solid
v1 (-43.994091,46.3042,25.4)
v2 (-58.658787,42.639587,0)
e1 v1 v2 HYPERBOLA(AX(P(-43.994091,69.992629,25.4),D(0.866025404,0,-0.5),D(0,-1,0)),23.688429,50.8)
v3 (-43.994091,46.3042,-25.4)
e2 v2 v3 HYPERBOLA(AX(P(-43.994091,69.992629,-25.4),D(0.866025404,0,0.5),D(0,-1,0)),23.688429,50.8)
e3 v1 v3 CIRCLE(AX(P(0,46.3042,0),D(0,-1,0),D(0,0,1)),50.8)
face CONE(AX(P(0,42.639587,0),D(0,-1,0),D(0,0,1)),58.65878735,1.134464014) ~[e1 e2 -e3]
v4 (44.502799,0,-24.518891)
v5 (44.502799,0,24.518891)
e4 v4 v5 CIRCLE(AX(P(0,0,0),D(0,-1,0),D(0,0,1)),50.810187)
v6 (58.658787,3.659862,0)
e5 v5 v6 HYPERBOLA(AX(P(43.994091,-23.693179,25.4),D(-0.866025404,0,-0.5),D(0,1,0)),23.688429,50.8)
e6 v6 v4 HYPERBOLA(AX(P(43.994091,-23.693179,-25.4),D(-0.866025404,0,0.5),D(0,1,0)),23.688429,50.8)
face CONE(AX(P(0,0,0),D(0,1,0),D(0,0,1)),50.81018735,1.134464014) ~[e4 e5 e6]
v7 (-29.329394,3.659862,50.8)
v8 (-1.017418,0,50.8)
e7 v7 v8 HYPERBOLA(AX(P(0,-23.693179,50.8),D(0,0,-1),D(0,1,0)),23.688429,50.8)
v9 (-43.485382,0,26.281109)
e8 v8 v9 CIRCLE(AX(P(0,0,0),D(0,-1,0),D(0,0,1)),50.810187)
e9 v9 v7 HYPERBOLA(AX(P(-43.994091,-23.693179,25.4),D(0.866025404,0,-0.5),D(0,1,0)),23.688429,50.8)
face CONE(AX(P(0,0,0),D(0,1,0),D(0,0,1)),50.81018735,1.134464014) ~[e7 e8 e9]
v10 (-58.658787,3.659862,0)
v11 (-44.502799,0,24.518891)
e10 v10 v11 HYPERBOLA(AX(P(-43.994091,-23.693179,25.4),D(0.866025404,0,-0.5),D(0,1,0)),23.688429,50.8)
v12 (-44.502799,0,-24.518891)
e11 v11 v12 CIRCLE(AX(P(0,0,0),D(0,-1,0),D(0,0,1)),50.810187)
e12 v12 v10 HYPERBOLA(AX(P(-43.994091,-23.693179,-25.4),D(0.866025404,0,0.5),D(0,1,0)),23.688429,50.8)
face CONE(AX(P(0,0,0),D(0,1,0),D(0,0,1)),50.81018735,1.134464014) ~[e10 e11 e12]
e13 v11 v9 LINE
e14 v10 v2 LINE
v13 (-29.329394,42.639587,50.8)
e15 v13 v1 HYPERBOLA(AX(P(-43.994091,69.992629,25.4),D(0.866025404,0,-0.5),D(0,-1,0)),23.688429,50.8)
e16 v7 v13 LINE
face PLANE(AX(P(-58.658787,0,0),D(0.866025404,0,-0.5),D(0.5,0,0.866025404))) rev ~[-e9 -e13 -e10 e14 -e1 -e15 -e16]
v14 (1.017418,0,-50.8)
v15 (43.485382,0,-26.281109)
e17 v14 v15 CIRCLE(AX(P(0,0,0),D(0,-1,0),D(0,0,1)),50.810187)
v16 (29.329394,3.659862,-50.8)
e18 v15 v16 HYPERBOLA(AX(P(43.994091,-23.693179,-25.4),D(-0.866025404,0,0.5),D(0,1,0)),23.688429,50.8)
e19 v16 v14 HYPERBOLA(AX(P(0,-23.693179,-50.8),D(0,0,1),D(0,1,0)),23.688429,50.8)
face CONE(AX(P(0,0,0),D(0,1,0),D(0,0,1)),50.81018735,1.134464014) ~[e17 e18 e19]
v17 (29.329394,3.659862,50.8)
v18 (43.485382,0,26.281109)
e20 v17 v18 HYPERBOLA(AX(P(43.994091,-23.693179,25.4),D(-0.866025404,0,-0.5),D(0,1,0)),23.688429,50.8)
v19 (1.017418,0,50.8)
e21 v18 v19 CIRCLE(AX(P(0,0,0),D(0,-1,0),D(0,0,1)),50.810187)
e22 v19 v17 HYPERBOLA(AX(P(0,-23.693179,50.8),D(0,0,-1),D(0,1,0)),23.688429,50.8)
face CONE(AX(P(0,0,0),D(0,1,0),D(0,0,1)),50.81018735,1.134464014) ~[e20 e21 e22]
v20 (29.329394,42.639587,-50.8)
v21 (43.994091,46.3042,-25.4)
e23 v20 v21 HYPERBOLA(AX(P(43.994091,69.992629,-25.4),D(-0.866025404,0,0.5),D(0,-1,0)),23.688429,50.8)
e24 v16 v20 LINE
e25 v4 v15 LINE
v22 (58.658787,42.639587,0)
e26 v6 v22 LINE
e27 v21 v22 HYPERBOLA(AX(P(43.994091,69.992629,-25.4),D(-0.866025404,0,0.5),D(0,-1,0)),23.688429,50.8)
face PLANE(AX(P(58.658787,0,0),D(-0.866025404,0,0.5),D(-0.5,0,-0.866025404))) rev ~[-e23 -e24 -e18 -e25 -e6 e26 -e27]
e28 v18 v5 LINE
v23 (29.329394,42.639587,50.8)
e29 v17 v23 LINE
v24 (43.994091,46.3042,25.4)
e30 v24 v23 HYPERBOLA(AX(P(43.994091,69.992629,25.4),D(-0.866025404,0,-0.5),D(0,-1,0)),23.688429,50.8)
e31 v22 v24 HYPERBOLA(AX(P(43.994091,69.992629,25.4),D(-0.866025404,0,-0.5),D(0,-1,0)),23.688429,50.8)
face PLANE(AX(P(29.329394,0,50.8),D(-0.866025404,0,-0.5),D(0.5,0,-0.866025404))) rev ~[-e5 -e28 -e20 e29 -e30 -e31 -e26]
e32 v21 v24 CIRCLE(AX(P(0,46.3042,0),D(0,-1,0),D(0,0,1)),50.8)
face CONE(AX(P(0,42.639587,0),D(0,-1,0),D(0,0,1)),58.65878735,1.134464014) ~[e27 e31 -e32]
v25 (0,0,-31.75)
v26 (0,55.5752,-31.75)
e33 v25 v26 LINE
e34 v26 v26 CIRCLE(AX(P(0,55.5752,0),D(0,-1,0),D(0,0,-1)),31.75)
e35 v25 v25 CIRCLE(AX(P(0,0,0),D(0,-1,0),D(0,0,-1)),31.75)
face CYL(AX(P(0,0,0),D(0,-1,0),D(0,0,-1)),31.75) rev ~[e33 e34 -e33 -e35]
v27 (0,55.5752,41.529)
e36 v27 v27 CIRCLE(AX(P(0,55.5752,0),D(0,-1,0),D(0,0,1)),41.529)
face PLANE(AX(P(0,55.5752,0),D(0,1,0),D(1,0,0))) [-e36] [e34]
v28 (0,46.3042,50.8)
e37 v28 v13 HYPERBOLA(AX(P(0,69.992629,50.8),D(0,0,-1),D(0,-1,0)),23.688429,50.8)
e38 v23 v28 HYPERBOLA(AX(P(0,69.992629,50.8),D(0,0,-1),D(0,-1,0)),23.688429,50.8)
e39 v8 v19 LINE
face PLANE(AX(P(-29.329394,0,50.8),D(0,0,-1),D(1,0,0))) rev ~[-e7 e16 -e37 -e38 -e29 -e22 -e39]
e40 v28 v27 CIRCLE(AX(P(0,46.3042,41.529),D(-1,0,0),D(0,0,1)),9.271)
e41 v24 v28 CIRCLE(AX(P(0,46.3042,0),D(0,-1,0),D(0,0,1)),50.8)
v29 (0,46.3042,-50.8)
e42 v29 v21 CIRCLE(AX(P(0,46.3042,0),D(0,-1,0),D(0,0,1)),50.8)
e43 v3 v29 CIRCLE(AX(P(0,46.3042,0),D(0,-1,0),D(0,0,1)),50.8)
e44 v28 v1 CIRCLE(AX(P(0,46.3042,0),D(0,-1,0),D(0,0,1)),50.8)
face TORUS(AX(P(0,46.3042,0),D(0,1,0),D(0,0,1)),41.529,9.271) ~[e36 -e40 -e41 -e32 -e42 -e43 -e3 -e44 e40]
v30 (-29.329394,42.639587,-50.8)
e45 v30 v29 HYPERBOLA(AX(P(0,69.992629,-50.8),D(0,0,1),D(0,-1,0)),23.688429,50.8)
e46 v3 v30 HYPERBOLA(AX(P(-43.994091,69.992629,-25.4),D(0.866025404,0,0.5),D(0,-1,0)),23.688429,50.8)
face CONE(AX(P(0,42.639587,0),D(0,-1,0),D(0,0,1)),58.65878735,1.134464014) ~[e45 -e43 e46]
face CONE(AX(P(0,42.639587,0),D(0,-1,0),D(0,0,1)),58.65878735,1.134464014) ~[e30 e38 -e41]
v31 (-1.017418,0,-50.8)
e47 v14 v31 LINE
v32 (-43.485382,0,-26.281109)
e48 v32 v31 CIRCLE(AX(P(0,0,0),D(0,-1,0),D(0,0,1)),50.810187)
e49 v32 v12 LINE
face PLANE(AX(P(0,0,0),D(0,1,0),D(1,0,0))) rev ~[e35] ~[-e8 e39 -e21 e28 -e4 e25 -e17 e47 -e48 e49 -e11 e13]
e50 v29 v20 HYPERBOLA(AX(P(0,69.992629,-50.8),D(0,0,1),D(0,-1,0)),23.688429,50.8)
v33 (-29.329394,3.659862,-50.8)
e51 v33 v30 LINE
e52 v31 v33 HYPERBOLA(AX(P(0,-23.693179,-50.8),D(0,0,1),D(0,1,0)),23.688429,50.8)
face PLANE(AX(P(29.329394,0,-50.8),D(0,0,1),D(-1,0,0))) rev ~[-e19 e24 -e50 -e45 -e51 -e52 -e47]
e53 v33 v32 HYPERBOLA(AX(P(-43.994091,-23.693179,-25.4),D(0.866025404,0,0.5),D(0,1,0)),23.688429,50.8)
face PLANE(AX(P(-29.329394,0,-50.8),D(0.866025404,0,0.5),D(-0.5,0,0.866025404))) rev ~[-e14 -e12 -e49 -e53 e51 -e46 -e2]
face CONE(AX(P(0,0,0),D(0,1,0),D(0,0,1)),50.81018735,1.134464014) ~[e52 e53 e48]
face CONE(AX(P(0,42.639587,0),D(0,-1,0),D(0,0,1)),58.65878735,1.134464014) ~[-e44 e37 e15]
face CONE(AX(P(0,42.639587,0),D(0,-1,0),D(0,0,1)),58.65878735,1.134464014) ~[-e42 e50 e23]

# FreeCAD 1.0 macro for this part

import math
import FreeCAD as App
import Part
import Sketcher
Q = App.Units.Quantity

doc = App.newDocument("Part")
body = doc.addObject("PartDesign::Body", "Body")

# Sketch on XZ plane
sketch1 = body.newObject("Sketcher::SketchObject", "Sketch")
sketch1.AttachmentSupport = (doc.getObject("XZ_Plane"), [""])
sketch1.MapMode = "FlatFace"
sketch1.addGeometry(Part.LineSegment(App.Vector(58.658787, 0, 0), App.Vector(29.329394, -50.8, 0)), False)
sketch1.addGeometry(Part.LineSegment(App.Vector(29.329394, -50.8, 0), App.Vector(-29.329394, -50.8, 0)), False)
sketch1.addGeometry(Part.LineSegment(App.Vector(-29.329394, -50.8, 0), App.Vector(-58.658787, 0, 0)), False)
sketch1.addGeometry(Part.LineSegment(App.Vector(-58.658787, 0, 0), App.Vector(-29.329394, 50.8, 0)), False)
sketch1.addGeometry(Part.LineSegment(App.Vector(-29.329394, 50.8, 0), App.Vector(29.329394, 50.8, 0)), False)
sketch1.addGeometry(Part.LineSegment(App.Vector(29.329394, 50.8, 0), App.Vector(58.658787, 0, 0)), False)
sketch1.addConstraint(Sketcher.Constraint("Coincident", 0, 2, 1, 1))
sketch1.addConstraint(Sketcher.Constraint("Coincident", 1, 2, 2, 1))
sketch1.addConstraint(Sketcher.Constraint("Coincident", 2, 2, 3, 1))
sketch1.addConstraint(Sketcher.Constraint("Coincident", 3, 2, 4, 1))
sketch1.addConstraint(Sketcher.Constraint("Coincident", 4, 2, 5, 1))
sketch1.addConstraint(Sketcher.Constraint("Coincident", 5, 2, 0, 1))
sketch1.addConstraint(Sketcher.Constraint("Horizontal", 1))
sketch1.addConstraint(Sketcher.Constraint("Horizontal", 4))
sketch1.addConstraint(Sketcher.Constraint("Symmetric", 0, 2, 3, 2, -1, 1))
sketch1.addConstraint(Sketcher.Constraint("Symmetric", 2, 2, 5, 2, -1, 1))
sketch1.addConstraint(Sketcher.Constraint("PointOnObject", 2, 2, -1))
sketch1.addConstraint(Sketcher.Constraint("Parallel", 2, 5))
sketch1.addConstraint(Sketcher.Constraint("Vertical", 1, 2, 3, 2))
sketch1.addConstraint(Sketcher.Constraint("DistanceY", 0, 2, -1, 1, Q("2 in")))
sketch1.addConstraint(Sketcher.Constraint("Angle", 0, Q("-120 deg")))
sketch1.addConstraint(Sketcher.Constraint("DistanceX", 1, 2, 1, 1, Q("58.658787 mm")))
pad1 = body.newObject("PartDesign::Pad", "Pad")
pad1.Profile = sketch1
pad1.Length = Q("2.188 in")
pad1.Reversed = True

# Sketch on XZ plane
sketch2 = body.newObject("Sketcher::SketchObject", "Sketch001")
sketch2.AttachmentSupport = (doc.getObject("XZ_Plane"), [""])
sketch2.MapMode = "FlatFace"
sketch2.addGeometry(Part.Circle(App.Vector(0, 0, 0), App.Vector(0, 0, 1), 31.75), False)
sketch2.addConstraint(Sketcher.Constraint("Coincident", 0, 3, -1, 1))
sketch2.addConstraint(Sketcher.Constraint("Diameter", 0, Q("2.5 in")))
pocket1 = body.newObject("PartDesign::Pocket", "Pocket")
pocket1.Profile = sketch2
pocket1.Type = "ThroughAll"

# Sketch on XY plane
sketch3 = body.newObject("Sketcher::SketchObject", "Sketch002")
sketch3.AttachmentSupport = (doc.getObject("XY_Plane"), [""])
sketch3.MapMode = "FlatFace"
sketch3.addGeometry(Part.LineSegment(App.Vector(59.9186, 56.8452, 0), App.Vector(0, 56.8452, 0)), False)
sketch3.addGeometry(Part.LineSegment(App.Vector(0, 56.8452, 0), App.Vector(0, 55.5752, 0)), False)
sketch3.addGeometry(Part.LineSegment(App.Vector(0, 55.5752, 0), App.Vector(41.529, 55.5752, 0)), False)
sketch3.addGeometry(Part.ArcOfCircle(Part.Circle(App.Vector(41.529, 46.3042, 0), App.Vector(0, 0, 1), 9.271), math.radians(0), math.radians(90)), False)
sketch3.addGeometry(Part.LineSegment(App.Vector(50.8, 46.3042, 0), App.Vector(58.658787, 42.639587, 0)), False)
sketch3.addGeometry(Part.LineSegment(App.Vector(58.658787, 42.639587, 0), App.Vector(58.658787, 3.659862, 0)), False)
sketch3.addGeometry(Part.LineSegment(App.Vector(58.658787, 3.659862, 0), App.Vector(50.810187, 0, 0)), False)
sketch3.addGeometry(Part.LineSegment(App.Vector(50.810187, 0, 0), App.Vector(0, 0, 0)), False)
sketch3.addGeometry(Part.LineSegment(App.Vector(0, 0, 0), App.Vector(0, -1.27, 0)), False)
sketch3.addGeometry(Part.LineSegment(App.Vector(0, -1.27, 0), App.Vector(59.9186, -1.27, 0)), False)
sketch3.addGeometry(Part.LineSegment(App.Vector(59.9186, -1.27, 0), App.Vector(59.9186, 56.8452, 0)), False)
sketch3.addConstraint(Sketcher.Constraint("Coincident", 0, 2, 1, 1))
sketch3.addConstraint(Sketcher.Constraint("Coincident", 1, 2, 2, 1))
sketch3.addConstraint(Sketcher.Constraint("Tangent", 2, 2, 3, 2))
sketch3.addConstraint(Sketcher.Constraint("Coincident", 3, 1, 4, 1))
sketch3.addConstraint(Sketcher.Constraint("Coincident", 4, 2, 5, 1))
sketch3.addConstraint(Sketcher.Constraint("Coincident", 5, 2, 6, 1))
sketch3.addConstraint(Sketcher.Constraint("Coincident", 6, 2, 7, 1))
sketch3.addConstraint(Sketcher.Constraint("Coincident", 7, 2, 8, 1))
sketch3.addConstraint(Sketcher.Constraint("Coincident", 8, 2, 9, 1))
sketch3.addConstraint(Sketcher.Constraint("Coincident", 9, 2, 10, 1))
sketch3.addConstraint(Sketcher.Constraint("Coincident", 10, 2, 0, 1))
sketch3.addConstraint(Sketcher.Constraint("Horizontal", 0))
sketch3.addConstraint(Sketcher.Constraint("Vertical", 1))
sketch3.addConstraint(Sketcher.Constraint("Horizontal", 2))
sketch3.addConstraint(Sketcher.Constraint("Vertical", 5))
sketch3.addConstraint(Sketcher.Constraint("Horizontal", 7))
sketch3.addConstraint(Sketcher.Constraint("Vertical", 8))
sketch3.addConstraint(Sketcher.Constraint("Horizontal", 9))
sketch3.addConstraint(Sketcher.Constraint("Vertical", 10))
sketch3.addConstraint(Sketcher.Constraint("Coincident", 7, 2, -1, 1))
sketch3.addConstraint(Sketcher.Constraint("PointOnObject", 0, 2, -2))
sketch3.addConstraint(Sketcher.Constraint("Equal", 1, 8))
sketch3.addConstraint(Sketcher.Constraint("DistanceX", -1, 1, 3, 1, Q("2 in")))
sketch3.addConstraint(Sketcher.Constraint("Angle", 4, Q("-25 deg")))
sketch3.addConstraint(Sketcher.Constraint("Angle", 6, Q("-155 deg")))
sketch3.addConstraint(Sketcher.Constraint("Radius", 3, Q("0.365 in")))
sketch3.addConstraint(Sketcher.Constraint("DistanceY", 1, 2, 1, 1, Q("0.05 in")))
sketch3.addConstraint(Sketcher.Constraint("DistanceX", 0, 2, 0, 1, Q("2.359 in")))
sketch3.addConstraint(Sketcher.Constraint("DistanceY", 10, 1, 10, 2, Q("2.288 in")))
sketch3.addConstraint(Sketcher.Constraint("DistanceY", -1, 1, 3, 1, Q("1.823 in")))
sketch3.addConstraint(Sketcher.Constraint("DistanceX", 6, 2, 5, 2, Q("0.309 in")))
sketch3.addConstraint(Sketcher.Constraint("DistanceX", 7, 2, 7, 1, Q("50.810187 mm")))
groove = body.newObject("PartDesign::Groove", "Groove")
groove.Profile = sketch3
groove.ReferenceAxis = (sketch3, ["V_Axis"])
groove.Angle = 360

doc.recompute()
